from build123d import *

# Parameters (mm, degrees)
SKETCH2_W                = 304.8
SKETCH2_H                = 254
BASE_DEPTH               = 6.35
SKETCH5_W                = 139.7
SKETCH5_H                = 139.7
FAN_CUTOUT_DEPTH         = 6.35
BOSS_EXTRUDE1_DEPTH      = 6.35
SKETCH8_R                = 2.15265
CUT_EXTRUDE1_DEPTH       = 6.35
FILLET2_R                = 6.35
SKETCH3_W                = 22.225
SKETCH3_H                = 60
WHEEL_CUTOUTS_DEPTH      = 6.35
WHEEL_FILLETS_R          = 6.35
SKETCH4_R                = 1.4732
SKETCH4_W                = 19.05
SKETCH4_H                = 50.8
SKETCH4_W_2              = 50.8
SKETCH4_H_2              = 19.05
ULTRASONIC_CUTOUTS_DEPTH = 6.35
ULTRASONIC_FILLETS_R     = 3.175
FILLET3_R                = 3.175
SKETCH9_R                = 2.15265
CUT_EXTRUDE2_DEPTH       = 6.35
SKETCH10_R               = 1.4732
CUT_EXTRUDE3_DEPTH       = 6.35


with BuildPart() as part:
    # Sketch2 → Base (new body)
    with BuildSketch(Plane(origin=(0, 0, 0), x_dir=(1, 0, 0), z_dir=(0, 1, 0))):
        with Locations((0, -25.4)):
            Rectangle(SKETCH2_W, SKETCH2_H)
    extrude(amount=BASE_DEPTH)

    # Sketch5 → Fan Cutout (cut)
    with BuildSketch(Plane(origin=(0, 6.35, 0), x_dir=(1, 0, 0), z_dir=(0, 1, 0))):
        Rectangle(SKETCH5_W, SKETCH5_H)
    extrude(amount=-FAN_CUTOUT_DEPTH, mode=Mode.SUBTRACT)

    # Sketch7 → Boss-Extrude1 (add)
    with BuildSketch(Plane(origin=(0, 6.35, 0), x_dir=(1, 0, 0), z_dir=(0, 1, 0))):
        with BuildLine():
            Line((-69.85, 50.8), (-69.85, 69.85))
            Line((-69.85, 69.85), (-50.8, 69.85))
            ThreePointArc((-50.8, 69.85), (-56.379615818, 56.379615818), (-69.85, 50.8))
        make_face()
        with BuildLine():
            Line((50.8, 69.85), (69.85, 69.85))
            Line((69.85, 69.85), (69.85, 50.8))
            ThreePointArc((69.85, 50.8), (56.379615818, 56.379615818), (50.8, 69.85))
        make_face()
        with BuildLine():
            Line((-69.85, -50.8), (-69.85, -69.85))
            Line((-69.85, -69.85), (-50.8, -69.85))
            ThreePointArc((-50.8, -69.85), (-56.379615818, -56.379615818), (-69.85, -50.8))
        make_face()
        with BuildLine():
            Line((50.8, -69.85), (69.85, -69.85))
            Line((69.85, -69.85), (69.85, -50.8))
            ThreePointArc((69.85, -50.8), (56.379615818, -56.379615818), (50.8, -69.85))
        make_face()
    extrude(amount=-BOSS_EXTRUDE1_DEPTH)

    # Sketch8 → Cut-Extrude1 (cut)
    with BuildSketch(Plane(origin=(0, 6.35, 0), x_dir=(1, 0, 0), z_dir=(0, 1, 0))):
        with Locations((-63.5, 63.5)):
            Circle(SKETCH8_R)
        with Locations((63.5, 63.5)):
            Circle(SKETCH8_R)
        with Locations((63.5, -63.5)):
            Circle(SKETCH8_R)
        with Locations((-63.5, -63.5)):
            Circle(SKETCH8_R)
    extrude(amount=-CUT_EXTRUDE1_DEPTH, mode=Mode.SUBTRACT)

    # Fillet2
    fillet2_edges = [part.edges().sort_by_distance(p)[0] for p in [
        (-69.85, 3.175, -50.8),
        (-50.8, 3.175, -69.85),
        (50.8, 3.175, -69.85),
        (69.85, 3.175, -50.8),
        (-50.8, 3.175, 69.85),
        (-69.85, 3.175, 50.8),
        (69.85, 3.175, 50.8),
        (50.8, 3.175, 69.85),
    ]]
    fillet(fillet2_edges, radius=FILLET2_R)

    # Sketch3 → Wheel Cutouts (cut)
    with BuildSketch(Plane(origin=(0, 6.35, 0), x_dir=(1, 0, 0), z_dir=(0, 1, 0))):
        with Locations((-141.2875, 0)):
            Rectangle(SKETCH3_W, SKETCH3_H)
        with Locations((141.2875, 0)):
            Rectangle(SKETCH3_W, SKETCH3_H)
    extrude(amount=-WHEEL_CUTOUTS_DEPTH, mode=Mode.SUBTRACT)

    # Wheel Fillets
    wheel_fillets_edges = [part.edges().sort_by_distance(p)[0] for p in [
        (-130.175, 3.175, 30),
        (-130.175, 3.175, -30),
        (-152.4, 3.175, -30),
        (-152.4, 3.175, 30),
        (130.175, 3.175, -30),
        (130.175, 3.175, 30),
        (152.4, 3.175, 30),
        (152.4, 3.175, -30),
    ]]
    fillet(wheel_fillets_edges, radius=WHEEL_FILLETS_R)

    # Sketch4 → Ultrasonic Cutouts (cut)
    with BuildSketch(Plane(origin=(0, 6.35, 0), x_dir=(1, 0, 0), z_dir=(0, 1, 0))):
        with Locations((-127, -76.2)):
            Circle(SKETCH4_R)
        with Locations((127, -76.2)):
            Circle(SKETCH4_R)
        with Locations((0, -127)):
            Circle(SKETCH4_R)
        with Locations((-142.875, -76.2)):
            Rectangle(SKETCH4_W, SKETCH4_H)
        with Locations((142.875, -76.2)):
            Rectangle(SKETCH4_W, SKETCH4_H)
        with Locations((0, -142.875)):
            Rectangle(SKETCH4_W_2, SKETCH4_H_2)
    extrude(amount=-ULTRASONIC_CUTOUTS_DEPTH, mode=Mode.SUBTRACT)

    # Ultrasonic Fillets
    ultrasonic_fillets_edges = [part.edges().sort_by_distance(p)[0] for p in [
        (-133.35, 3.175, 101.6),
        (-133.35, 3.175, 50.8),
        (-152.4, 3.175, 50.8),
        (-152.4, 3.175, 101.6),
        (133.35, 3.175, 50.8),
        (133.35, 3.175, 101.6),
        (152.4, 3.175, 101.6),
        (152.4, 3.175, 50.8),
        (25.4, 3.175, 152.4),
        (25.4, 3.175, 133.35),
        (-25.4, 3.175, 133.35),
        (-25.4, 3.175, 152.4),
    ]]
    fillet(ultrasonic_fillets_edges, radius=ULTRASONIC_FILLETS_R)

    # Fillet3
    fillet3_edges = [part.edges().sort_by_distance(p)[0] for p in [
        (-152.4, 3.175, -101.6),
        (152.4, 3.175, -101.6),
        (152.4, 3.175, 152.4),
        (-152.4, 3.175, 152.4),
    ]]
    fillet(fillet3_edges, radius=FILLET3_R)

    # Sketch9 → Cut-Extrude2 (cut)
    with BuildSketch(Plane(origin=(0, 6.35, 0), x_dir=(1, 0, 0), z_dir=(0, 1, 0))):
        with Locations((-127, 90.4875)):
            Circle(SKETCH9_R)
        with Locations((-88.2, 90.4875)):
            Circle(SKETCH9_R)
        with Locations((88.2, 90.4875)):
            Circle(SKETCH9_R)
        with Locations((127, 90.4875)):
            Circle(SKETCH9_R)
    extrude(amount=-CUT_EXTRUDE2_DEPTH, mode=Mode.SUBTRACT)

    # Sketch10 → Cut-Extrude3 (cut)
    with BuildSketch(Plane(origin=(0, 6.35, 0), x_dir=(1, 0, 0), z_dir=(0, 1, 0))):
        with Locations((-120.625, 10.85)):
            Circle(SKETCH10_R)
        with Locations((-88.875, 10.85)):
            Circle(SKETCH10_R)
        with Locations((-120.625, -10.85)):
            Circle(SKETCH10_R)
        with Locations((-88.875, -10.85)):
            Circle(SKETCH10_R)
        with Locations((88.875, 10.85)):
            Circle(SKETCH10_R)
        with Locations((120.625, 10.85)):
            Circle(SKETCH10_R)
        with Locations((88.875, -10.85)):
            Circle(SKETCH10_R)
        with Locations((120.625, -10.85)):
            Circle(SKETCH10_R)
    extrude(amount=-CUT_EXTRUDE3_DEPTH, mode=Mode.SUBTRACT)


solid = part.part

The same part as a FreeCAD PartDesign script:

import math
import FreeCAD as App
import Part
import Sketcher
Q = App.Units.Quantity


def edges_at(feature, points):
    """Names of the edges that pass closest to the given points."""
    edges = feature.Shape.Edges
    near = lambda p: min(range(len(edges)), key=lambda i: edges[i].distToShape(Part.Vertex(*p))[0])
    return sorted({f"Edge{near(p) + 1}" for p in points})


def add_polygon(sketch, points):
    """Adds a closed chain of lines whose ends are joined by coincident constraints."""
    first, n = sketch.GeometryCount, len(points)
    for a, b in zip(points, points[1:] + points[:1]):
        sketch.addGeometry(Part.LineSegment(App.Vector(*a, 0), App.Vector(*b, 0)), False)
    for i in range(n):
        sketch.addConstraint(Sketcher.Constraint("Coincident", first + i, 2, first + (i + 1) % n, 1))

doc = App.newDocument("Part")
body = doc.addObject("PartDesign::Body", "Body")

# Sketch on XZ plane
sketch1 = body.newObject("Sketcher::SketchObject", "Sketch")
sketch1.AttachmentSupport = (doc.getObject("XZ_Plane"), [""])
sketch1.MapMode = "FlatFace"
add_polygon(sketch1, [(-152.4, -101.6), (-152.4, 152.4), (152.4, 152.4), (152.4, -101.6)])  # lines 0-3
sketch1.addConstraint([
    Sketcher.Constraint("Vertical", 0),
    Sketcher.Constraint("Horizontal", 1),
    Sketcher.Constraint("Vertical", 2),
    Sketcher.Constraint("Horizontal", 3),
    Sketcher.Constraint("DistanceX", 1, 1, 1, 2, Q("12 in")),
    Sketcher.Constraint("DistanceY", 0, 1, 0, 2, Q("10 in")),
    Sketcher.Constraint("DistanceX", 0, 2, -1, 1, Q("6 in")),
    Sketcher.Constraint("DistanceY", -1, 1, 0, 2, Q("6 in")),
])
pad1 = body.newObject("PartDesign::Pad", "Pad")
pad1.Profile = sketch1
pad1.Length = Q("0.25 in")
pad1.Reversed = True

# Sketch on XZ plane
sketch2 = body.newObject("Sketcher::SketchObject", "Sketch001")
sketch2.AttachmentSupport = (doc.getObject("XZ_Plane"), [""])
sketch2.MapMode = "FlatFace"
sketch2.AttachmentOffset = App.Placement(App.Vector(0, 0, -0.25 * 25.4), App.Rotation())
add_polygon(sketch2, [(-69.85, -69.85), (-69.85, 69.85), (69.85, 69.85), (69.85, -69.85)])  # lines 0-3
sketch2.addConstraint([
    Sketcher.Constraint("Vertical", 0),
    Sketcher.Constraint("Horizontal", 1),
    Sketcher.Constraint("Vertical", 2),
    Sketcher.Constraint("Horizontal", 3),
    Sketcher.Constraint("Symmetric", 0, 2, 2, 2, -1, 1),
    Sketcher.Constraint("Equal", 3, 0),
    Sketcher.Constraint("DistanceX", 1, 1, 1, 2, Q("5.5 in")),
])
pocket1 = body.newObject("PartDesign::Pocket", "Pocket")
pocket1.Profile = sketch2
pocket1.Length = Q("0.25 in")
pocket1.Reversed = True

# Sketch on XZ plane
sketch3 = body.newObject("Sketcher::SketchObject", "Sketch002")
sketch3.AttachmentSupport = (doc.getObject("XZ_Plane"), [""])
sketch3.MapMode = "FlatFace"
sketch3.AttachmentOffset = App.Placement(App.Vector(0, 0, -0.25 * 25.4), App.Rotation())
sketch3.addGeometry([
    Part.LineSegment(App.Vector(-69.85, -69.85, 0), App.Vector(-69.85, -50.8, 0)),  # 0
    Part.ArcOfCircle(Part.Circle(App.Vector(-69.85, -69.85, 0), App.Vector(0, 0, 1), 19.05), math.radians(0), math.radians(90)),  # 1
    Part.LineSegment(App.Vector(-50.8, -69.85, 0), App.Vector(-69.85, -69.85, 0)),  # 2
    Part.LineSegment(App.Vector(69.85, -69.85, 0), App.Vector(50.8, -69.85, 0)),  # 3
    Part.ArcOfCircle(Part.Circle(App.Vector(69.85, -69.85, 0), App.Vector(0, 0, 1), 19.05), math.radians(90), math.radians(180)),  # 4
    Part.LineSegment(App.Vector(69.85, -50.8, 0), App.Vector(69.85, -69.85, 0)),  # 5
    Part.LineSegment(App.Vector(-69.85, 50.8, 0), App.Vector(-69.85, 69.85, 0)),  # 6
    Part.LineSegment(App.Vector(-69.85, 69.85, 0), App.Vector(-50.8, 69.85, 0)),  # 7
    Part.ArcOfCircle(Part.Circle(App.Vector(-69.85, 69.85, 0), App.Vector(0, 0, 1), 19.05), math.radians(-90), math.radians(0)),  # 8
    Part.LineSegment(App.Vector(50.8, 69.85, 0), App.Vector(69.85, 69.85, 0)),  # 9
    Part.LineSegment(App.Vector(69.85, 69.85, 0), App.Vector(69.85, 50.8, 0)),  # 10
    Part.ArcOfCircle(Part.Circle(App.Vector(69.85, 69.85, 0), App.Vector(0, 0, 1), 19.05), math.radians(180), math.radians(270)),  # 11
], False)
sketch3.addConstraint([
    Sketcher.Constraint("Coincident", 0, 2, 1, 2),
    Sketcher.Constraint("Coincident", 1, 1, 2, 1),
    Sketcher.Constraint("Coincident", 2, 2, 0, 1),
    Sketcher.Constraint("Coincident", 3, 2, 4, 2),
    Sketcher.Constraint("Coincident", 4, 1, 5, 1),
    Sketcher.Constraint("Coincident", 5, 2, 3, 1),
    Sketcher.Constraint("Coincident", 6, 2, 7, 1),
    Sketcher.Constraint("Coincident", 7, 2, 8, 2),
    Sketcher.Constraint("Coincident", 8, 1, 6, 1),
    Sketcher.Constraint("Coincident", 9, 2, 10, 1),
    Sketcher.Constraint("Coincident", 10, 2, 11, 2),
    Sketcher.Constraint("Coincident", 11, 1, 9, 1),
    Sketcher.Constraint("Vertical", 0),
    Sketcher.Constraint("Horizontal", 2),
    Sketcher.Constraint("Horizontal", 3),
    Sketcher.Constraint("Vertical", 5),
    Sketcher.Constraint("Vertical", 6),
    Sketcher.Constraint("Horizontal", 7),
    Sketcher.Constraint("Horizontal", 9),
    Sketcher.Constraint("Vertical", 10),
    Sketcher.Constraint("Coincident", 2, 2, 1, 3),
    Sketcher.Constraint("Coincident", 5, 2, 4, 3),
    Sketcher.Constraint("Coincident", 6, 2, 8, 3),
    Sketcher.Constraint("Coincident", 9, 2, 11, 3),
    Sketcher.Constraint("Equal", 1, 4),
    Sketcher.Constraint("Equal", 4, 8),
    Sketcher.Constraint("Equal", 8, 11),
    Sketcher.Constraint("Symmetric", 4, 3, 8, 3, -1, 1),
    Sketcher.Constraint("Symmetric", 1, 3, 11, 3, -1, 1),
    Sketcher.Constraint("Symmetric", 1, 3, 4, 3, -2),
    Sketcher.Constraint("Radius", 1, Q("0.75 in")),
    Sketcher.Constraint("DistanceY", 0, 2, -1, 1, Q("2 in")),
    Sketcher.Constraint("DistanceX", 1, 1, -1, 1, Q("2 in")),
])
pad2 = body.newObject("PartDesign::Pad", "Pad001")
pad2.Profile = sketch3
pad2.Length = Q("0.25 in")

# Sketch on XZ plane
sketch4 = body.newObject("Sketcher::SketchObject", "Sketch003")
sketch4.AttachmentSupport = (doc.getObject("XZ_Plane"), [""])
sketch4.MapMode = "FlatFace"
sketch4.AttachmentOffset = App.Placement(App.Vector(0, 0, -0.25 * 25.4), App.Rotation())
sketch4.addGeometry([
    Part.Circle(App.Vector(-63.5, -63.5, 0), App.Vector(0, 0, 1), 2.15265),
    Part.Circle(App.Vector(63.5, -63.5, 0), App.Vector(0, 0, 1), 2.15265),
    Part.Circle(App.Vector(63.5, 63.5, 0), App.Vector(0, 0, 1), 2.15265),
    Part.Circle(App.Vector(-63.5, 63.5, 0), App.Vector(0, 0, 1), 2.15265),
], False)
sketch4.addConstraint([
    Sketcher.Constraint("Equal", 0, 1),
    Sketcher.Constraint("Equal", 1, 2),
    Sketcher.Constraint("Equal", 2, 3),
    Sketcher.Constraint("Symmetric", 0, 3, 2, 3, -1, 1),
    Sketcher.Constraint("Symmetric", 1, 3, 3, 3, -1, 1),
    Sketcher.Constraint("Symmetric", 0, 3, 1, 3, -2),
    Sketcher.Constraint("DistanceX", 0, 3, 1, 3, Q("5 in")),
    Sketcher.Constraint("DistanceY", 1, 3, 2, 3, Q("5 in")),
    Sketcher.Constraint("Diameter", 0, Q("0.1695 in")),
])
pocket2 = body.newObject("PartDesign::Pocket", "Pocket001")
pocket2.Profile = sketch4
pocket2.Length = Q("0.25 in")
pocket2.Reversed = True
doc.recompute()

fillet = body.newObject("PartDesign::Fillet", "Fillet")
fillet.Base = (pocket2, edges_at(pocket2, [
    (-69.85, 3.175, -50.8),
    (-50.8, 3.175, -69.85),
    (50.8, 3.175, -69.85),
    (69.85, 3.175, -50.8),
    (-50.8, 3.175, 69.85),
    (-69.85, 3.175, 50.8),
    (69.85, 3.175, 50.8),
    (50.8, 3.175, 69.85),
]))
fillet.Radius = Q("0.25 in")

# Sketch on XZ plane
sketch5 = body.newObject("Sketcher::SketchObject", "Sketch004")
sketch5.AttachmentSupport = (doc.getObject("XZ_Plane"), [""])
sketch5.MapMode = "FlatFace"
sketch5.AttachmentOffset = App.Placement(App.Vector(0, 0, -0.25 * 25.4), App.Rotation())
add_polygon(sketch5, [(-152.4, -30), (-152.4, 30), (-130.175, 30), (-130.175, -30)])  # lines 0-3
add_polygon(sketch5, [(130.175, -30), (130.175, 30), (152.4, 30), (152.4, -30)])  # lines 4-7
sketch5.addConstraint([
    Sketcher.Constraint("Vertical", 0),
    Sketcher.Constraint("Horizontal", 1),
    Sketcher.Constraint("Vertical", 2),
    Sketcher.Constraint("Horizontal", 3),
    Sketcher.Constraint("Vertical", 4),
    Sketcher.Constraint("Horizontal", 5),
    Sketcher.Constraint("Vertical", 6),
    Sketcher.Constraint("Horizontal", 7),
    Sketcher.Constraint("Symmetric", 2, 2, 4, 2, -1, 1),
    Sketcher.Constraint("Symmetric", 0, 2, 6, 2, -1, 1),
    Sketcher.Constraint("Horizontal", 1, 2, 4, 2),
    Sketcher.Constraint("DistanceX", 0, 2, -1, 1, Q("6 in")),
    Sketcher.Constraint("DistanceX", 1, 1, 1, 2, Q("0.875 in")),
    Sketcher.Constraint("DistanceY", 0, 1, 0, 2, Q("60 mm")),
])
pocket3 = body.newObject("PartDesign::Pocket", "Pocket002")
pocket3.Profile = sketch5
pocket3.Length = Q("0.25 in")
pocket3.Reversed = True
doc.recompute()

fillet2 = body.newObject("PartDesign::Fillet", "Fillet001")
fillet2.Base = (pocket3, edges_at(pocket3, [
    (-130.175, 3.175, 30),
    (-130.175, 3.175, -30),
    (-152.4, 3.175, -30),
    (-152.4, 3.175, 30),
    (130.175, 3.175, -30),
    (130.175, 3.175, 30),
    (152.4, 3.175, 30),
    (152.4, 3.175, -30),
]))
fillet2.Radius = Q("0.25 in")

# Sketch on XZ plane
sketch6 = body.newObject("Sketcher::SketchObject", "Sketch005")
sketch6.AttachmentSupport = (doc.getObject("XZ_Plane"), [""])
sketch6.MapMode = "FlatFace"
sketch6.AttachmentOffset = App.Placement(App.Vector(0, 0, -0.25 * 25.4), App.Rotation())
sketch6.addGeometry(Part.Circle(App.Vector(-127, 76.2, 0), App.Vector(0, 0, 1), 1.4732), False)  # 0
sketch6.addGeometry(Part.Circle(App.Vector(127, 76.2, 0), App.Vector(0, 0, 1), 1.4732), False)  # 1
sketch6.addGeometry(Part.Circle(App.Vector(0, 127, 0), App.Vector(0, 0, 1), 1.4732), False)  # 2
add_polygon(sketch6, [(-152.4, 50.8), (-152.4, 101.6), (-133.35, 101.6), (-133.35, 50.8)])  # lines 3-6
add_polygon(sketch6, [(133.35, 50.8), (133.35, 101.6), (152.4, 101.6), (152.4, 50.8)])  # lines 7-10
add_polygon(sketch6, [(-25.4, 133.35), (-25.4, 152.4), (25.4, 152.4), (25.4, 133.35)])  # lines 11-14
sketch6.addConstraint([
    Sketcher.Constraint("Vertical", 3),
    Sketcher.Constraint("Horizontal", 4),
    Sketcher.Constraint("Vertical", 5),
    Sketcher.Constraint("Horizontal", 6),
    Sketcher.Constraint("Vertical", 7),
    Sketcher.Constraint("Horizontal", 8),
    Sketcher.Constraint("Vertical", 9),
    Sketcher.Constraint("Horizontal", 10),
    Sketcher.Constraint("Vertical", 11),
    Sketcher.Constraint("Horizontal", 12),
    Sketcher.Constraint("Vertical", 13),
    Sketcher.Constraint("Horizontal", 14),
    Sketcher.Constraint("Equal", 0, 1),
    Sketcher.Constraint("Equal", 1, 2),
    Sketcher.Constraint("Symmetric", 0, 3, 1, 3, -2),
    Sketcher.Constraint("Symmetric", 4, 2, 7, 2, -2),
    Sketcher.Constraint("Symmetric", 6, 2, 9, 2, -2),
    Sketcher.Constraint("PointOnObject", 2, 3, -2),
    Sketcher.Constraint("Equal", 14, 3),
    Sketcher.Constraint("Equal", 10, 11),
    Sketcher.Constraint("DistanceX", 12, 1, 12, 2, Q("2 in")),
    Sketcher.Constraint("Diameter", 0, Q("0.116 in")),
    Sketcher.Constraint("DistanceX", 0, 3, -1, 1, Q("5 in")),
    Sketcher.Constraint("DistanceY", -1, 1, 0, 3, Q("3 in")),
    Sketcher.Constraint("DistanceY", -1, 1, 2, 3, Q("5 in")),
    Sketcher.Constraint("DistanceX", 3, 2, -1, 1, Q("6 in")),
    Sketcher.Constraint("DistanceY", -1, 1, 3, 2, Q("4 in")),
    Sketcher.Constraint("DistanceX", 11, 2, -1, 1, Q("1 in")),
    Sketcher.Constraint("DistanceY", -1, 1, 11, 2, Q("6 in")),
    Sketcher.Constraint("DistanceX", 4, 1, 4, 2, Q("0.75 in")),
])
pocket4 = body.newObject("PartDesign::Pocket", "Pocket003")
pocket4.Profile = sketch6
pocket4.Length = Q("0.25 in")
pocket4.Reversed = True
doc.recompute()

fillet3 = body.newObject("PartDesign::Fillet", "Fillet002")
fillet3.Base = (pocket4, edges_at(pocket4, [
    (-133.35, 3.175, 101.6),
    (-133.35, 3.175, 50.8),
    (-152.4, 3.175, 50.8),
    (-152.4, 3.175, 101.6),
    (133.35, 3.175, 50.8),
    (133.35, 3.175, 101.6),
    (152.4, 3.175, 101.6),
    (152.4, 3.175, 50.8),
    (25.4, 3.175, 152.4),
    (25.4, 3.175, 133.35),
    (-25.4, 3.175, 133.35),
    (-25.4, 3.175, 152.4),
]))
fillet3.Radius = Q("0.125 in")
doc.recompute()

fillet4 = body.newObject("PartDesign::Fillet", "Fillet003")
fillet4.Base = (fillet3, edges_at(fillet3, [
    (-152.4, 3.175, -101.6),
    (152.4, 3.175, -101.6),
    (152.4, 3.175, 152.4),
    (-152.4, 3.175, 152.4),
]))
fillet4.Radius = Q("0.125 in")

# Sketch on XZ plane
sketch7 = body.newObject("Sketcher::SketchObject", "Sketch006")
sketch7.AttachmentSupport = (doc.getObject("XZ_Plane"), [""])
sketch7.MapMode = "FlatFace"
sketch7.AttachmentOffset = App.Placement(App.Vector(0, 0, -0.25 * 25.4), App.Rotation())
sketch7.addGeometry([
    Part.Circle(App.Vector(-127, -90.4875, 0), App.Vector(0, 0, 1), 2.15265),
    Part.Circle(App.Vector(-88.2, -90.4875, 0), App.Vector(0, 0, 1), 2.15265),
    Part.Circle(App.Vector(88.2, -90.4875, 0), App.Vector(0, 0, 1), 2.15265),
    Part.Circle(App.Vector(127, -90.4875, 0), App.Vector(0, 0, 1), 2.15265),
], False)
sketch7.addConstraint([
    Sketcher.Constraint("Equal", 0, 1),
    Sketcher.Constraint("Equal", 1, 2),
    Sketcher.Constraint("Equal", 2, 3),
    Sketcher.Constraint("Symmetric", 1, 3, 2, 3, -2),
    Sketcher.Constraint("Symmetric", 0, 3, 3, 3, -2),
    Sketcher.Constraint("Horizontal", 0, 3, 1, 3),
    Sketcher.Constraint("DistanceX", 0, 3, -1, 1, Q("5 in")),
    Sketcher.Constraint("Diameter", 0, Q("0.1695 in")),
    Sketcher.Constraint("DistanceY", 0, 3, -1, 1, Q("3.5625 in")),
    Sketcher.Constraint("DistanceX", 1, 3, -1, 1, Q("88.2 mm")),
])
pocket5 = body.newObject("PartDesign::Pocket", "Pocket004")
pocket5.Profile = sketch7
pocket5.Length = Q("0.25 in")
pocket5.Reversed = True

# Sketch on XZ plane
sketch8 = body.newObject("Sketcher::SketchObject", "Sketch007")
sketch8.AttachmentSupport = (doc.getObject("XZ_Plane"), [""])
sketch8.MapMode = "FlatFace"
sketch8.AttachmentOffset = App.Placement(App.Vector(0, 0, -0.25 * 25.4), App.Rotation())
sketch8.addGeometry([
    Part.Circle(App.Vector(-120.625, -10.85, 0), App.Vector(0, 0, 1), 1.4732),  # 0
    Part.Circle(App.Vector(-88.875, -10.85, 0), App.Vector(0, 0, 1), 1.4732),  # 1
    Part.Circle(App.Vector(-120.625, 10.85, 0), App.Vector(0, 0, 1), 1.4732),  # 2
    Part.Circle(App.Vector(-88.875, 10.85, 0), App.Vector(0, 0, 1), 1.4732),  # 3
    Part.Circle(App.Vector(88.875, -10.85, 0), App.Vector(0, 0, 1), 1.4732),  # 4
    Part.Circle(App.Vector(120.625, -10.85, 0), App.Vector(0, 0, 1), 1.4732),  # 5
    Part.Circle(App.Vector(88.875, 10.85, 0), App.Vector(0, 0, 1), 1.4732),  # 6
    Part.Circle(App.Vector(120.625, 10.85, 0), App.Vector(0, 0, 1), 1.4732),  # 7
], False)
sketch8.addConstraint([
    Sketcher.Constraint("Equal", 0, 1),
    Sketcher.Constraint("Equal", 1, 2),
    Sketcher.Constraint("Equal", 2, 3),
    Sketcher.Constraint("Equal", 3, 4),
    Sketcher.Constraint("Equal", 4, 5),
    Sketcher.Constraint("Equal", 5, 6),
    Sketcher.Constraint("Equal", 6, 7),
    Sketcher.Constraint("Symmetric", 3, 3, 4, 3, -1, 1),
    Sketcher.Constraint("Symmetric", 2, 3, 5, 3, -1, 1),
    Sketcher.Constraint("Symmetric", 1, 3, 6, 3, -1, 1),
    Sketcher.Constraint("Symmetric", 0, 3, 7, 3, -1, 1),
    Sketcher.Constraint("Symmetric", 1, 3, 4, 3, -2),
    Sketcher.Constraint("Symmetric", 0, 3, 5, 3, -2),
    Sketcher.Constraint("Horizontal", 0, 3, 1, 3),
    Sketcher.Constraint("Diameter", 0, Q("0.116 in")),
    Sketcher.Constraint("DistanceX", 0, 3, 1, 3, Q("1.25 in")),
    Sketcher.Constraint("DistanceX", 0, 3, -1, 1, Q("120.625 mm")),
    Sketcher.Constraint("DistanceY", 0, 3, -1, 1, Q("10.85 mm")),
])
pocket6 = body.newObject("PartDesign::Pocket", "Pocket005")
pocket6.Profile = sketch8
pocket6.Length = Q("0.25 in")
pocket6.Reversed = True

doc.recompute()
